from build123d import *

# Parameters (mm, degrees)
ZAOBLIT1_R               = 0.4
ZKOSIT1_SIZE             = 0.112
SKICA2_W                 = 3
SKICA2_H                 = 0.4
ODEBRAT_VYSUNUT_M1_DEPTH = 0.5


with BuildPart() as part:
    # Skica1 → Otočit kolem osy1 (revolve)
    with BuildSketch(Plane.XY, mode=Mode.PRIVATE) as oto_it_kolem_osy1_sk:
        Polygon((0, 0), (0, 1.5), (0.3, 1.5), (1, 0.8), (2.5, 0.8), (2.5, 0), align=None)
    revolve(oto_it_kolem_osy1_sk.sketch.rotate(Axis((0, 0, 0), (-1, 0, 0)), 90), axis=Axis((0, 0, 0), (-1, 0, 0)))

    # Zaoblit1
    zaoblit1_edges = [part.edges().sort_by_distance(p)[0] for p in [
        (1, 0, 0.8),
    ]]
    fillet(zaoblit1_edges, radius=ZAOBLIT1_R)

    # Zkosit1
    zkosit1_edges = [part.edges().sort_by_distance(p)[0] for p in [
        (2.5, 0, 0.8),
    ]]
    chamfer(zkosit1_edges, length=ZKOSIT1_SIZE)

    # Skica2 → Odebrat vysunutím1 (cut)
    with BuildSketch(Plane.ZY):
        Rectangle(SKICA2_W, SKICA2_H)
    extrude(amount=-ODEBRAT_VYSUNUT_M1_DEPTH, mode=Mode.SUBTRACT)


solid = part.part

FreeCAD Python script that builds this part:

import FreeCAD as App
import Part
import Sketcher
from FreeCAD import Vector
Q = App.Units.Quantity


def edges_at(feature, points):
    """Names of the edges that pass closest to the given points."""
    edges = feature.Shape.Edges
    near = lambda p: min(range(len(edges)), key=lambda i: edges[i].distToShape(Part.Vertex(*p))[0])
    return sorted({f"Edge{near(p) + 1}" for p in points})

doc = App.newDocument("Part")
body = doc.addObject("PartDesign::Body", "Body")

# Sketch on XY plane
sketch1 = body.newObject("Sketcher::SketchObject", "Sketch")
sketch1.AttachmentSupport = (doc.getObject("XY_Plane"), [""])
sketch1.MapMode = "FlatFace"
sketch1.addGeometry([
    Part.LineSegment(Vector(0, 1.5, 0), Vector(0, 0, 0)),  # 0
    Part.LineSegment(Vector(0, 0, 0), Vector(2.5, 0, 0)),  # 1
    Part.LineSegment(Vector(2.5, 0, 0), Vector(2.5, 0.8, 0)),  # 2
    Part.LineSegment(Vector(2.5, 0.8, 0), Vector(1, 0.8, 0)),  # 3
    Part.LineSegment(Vector(1, 0.8, 0), Vector(0.3, 1.5, 0)),  # 4
    Part.LineSegment(Vector(0.3, 1.5, 0), Vector(0, 1.5, 0)),  # 5
], False)
sketch1.addConstraint([
    Sketcher.Constraint("Coincident", 0, 2, 1, 1),
    Sketcher.Constraint("Coincident", 1, 2, 2, 1),
    Sketcher.Constraint("Coincident", 2, 2, 3, 1),
    Sketcher.Constraint("Coincident", 3, 2, 4, 1),
    Sketcher.Constraint("Coincident", 4, 2, 5, 1),
    Sketcher.Constraint("Coincident", 5, 2, 0, 1),
    Sketcher.Constraint("Vertical", 0),
    Sketcher.Constraint("Horizontal", 1),
    Sketcher.Constraint("Vertical", 2),
    Sketcher.Constraint("Horizontal", 3),
    Sketcher.Constraint("Horizontal", 5),
    Sketcher.Constraint("Coincident", 0, 2, -1, 1),
    Sketcher.Constraint("Equal", 3, 0),
    Sketcher.Constraint("Angle", 4, Q("135 deg")),
    Sketcher.Constraint("DistanceX", 1, 1, 1, 2, 2.5),
    Sketcher.Constraint("DistanceX", 3, 2, 3, 1, 1.5),
    Sketcher.Constraint("DistanceX", 5, 2, 5, 1, 0.3),
])
revolution = body.newObject("PartDesign::Revolution", "Revolution")
revolution.Profile = sketch1
revolution.ReferenceAxis = (sketch1, ["H_Axis"])
revolution.Angle = 360
doc.recompute()

fillet = body.newObject("PartDesign::Fillet", "Fillet")
fillet.Base = (revolution, edges_at(revolution, [(1, 0, 0.8)]))
fillet.Radius = 0.4
doc.recompute()

chamfer = body.newObject("PartDesign::Chamfer", "Chamfer")
chamfer.Base = (fillet, edges_at(fillet, [(2.5, 0, 0.8)]))
chamfer.Size = 0.112

# Sketch on YZ plane
sketch2 = body.newObject("Sketcher::SketchObject", "Sketch001")
sketch2.AttachmentSupport = (doc.getObject("YZ_Plane"), [""])
sketch2.MapMode = "FlatFace"
sketch2.addGeometry([
    Part.LineSegment(Vector(0.2, -1.5, 0), Vector(-0.2, -1.5, 0)),
    Part.LineSegment(Vector(-0.2, -1.5, 0), Vector(-0.2, 1.5, 0)),
    Part.LineSegment(Vector(-0.2, 1.5, 0), Vector(0.2, 1.5, 0)),
    Part.LineSegment(Vector(0.2, 1.5, 0), Vector(0.2, -1.5, 0)),
], False)
sketch2.addConstraint([
    Sketcher.Constraint("Coincident", 0, 2, 1, 1),
    Sketcher.Constraint("Coincident", 1, 2, 2, 1),
    Sketcher.Constraint("Coincident", 2, 2, 3, 1),
    Sketcher.Constraint("Coincident", 3, 2, 0, 1),
    Sketcher.Constraint("Horizontal", 0),
    Sketcher.Constraint("Vertical", 1),
    Sketcher.Constraint("Horizontal", 2),
    Sketcher.Constraint("Vertical", 3),
    Sketcher.Constraint("Symmetric", 0, 2, 2, 2, -1, 1),
    Sketcher.Constraint("DistanceY", 1, 1, 1, 2, 3.0),
    Sketcher.Constraint("DistanceX", 0, 2, 0, 1, 0.4),
])
pocket1 = body.newObject("PartDesign::Pocket", "Pocket")
pocket1.Profile = sketch2
pocket1.Length = 0.5
pocket1.Reversed = True

doc.recompute()
